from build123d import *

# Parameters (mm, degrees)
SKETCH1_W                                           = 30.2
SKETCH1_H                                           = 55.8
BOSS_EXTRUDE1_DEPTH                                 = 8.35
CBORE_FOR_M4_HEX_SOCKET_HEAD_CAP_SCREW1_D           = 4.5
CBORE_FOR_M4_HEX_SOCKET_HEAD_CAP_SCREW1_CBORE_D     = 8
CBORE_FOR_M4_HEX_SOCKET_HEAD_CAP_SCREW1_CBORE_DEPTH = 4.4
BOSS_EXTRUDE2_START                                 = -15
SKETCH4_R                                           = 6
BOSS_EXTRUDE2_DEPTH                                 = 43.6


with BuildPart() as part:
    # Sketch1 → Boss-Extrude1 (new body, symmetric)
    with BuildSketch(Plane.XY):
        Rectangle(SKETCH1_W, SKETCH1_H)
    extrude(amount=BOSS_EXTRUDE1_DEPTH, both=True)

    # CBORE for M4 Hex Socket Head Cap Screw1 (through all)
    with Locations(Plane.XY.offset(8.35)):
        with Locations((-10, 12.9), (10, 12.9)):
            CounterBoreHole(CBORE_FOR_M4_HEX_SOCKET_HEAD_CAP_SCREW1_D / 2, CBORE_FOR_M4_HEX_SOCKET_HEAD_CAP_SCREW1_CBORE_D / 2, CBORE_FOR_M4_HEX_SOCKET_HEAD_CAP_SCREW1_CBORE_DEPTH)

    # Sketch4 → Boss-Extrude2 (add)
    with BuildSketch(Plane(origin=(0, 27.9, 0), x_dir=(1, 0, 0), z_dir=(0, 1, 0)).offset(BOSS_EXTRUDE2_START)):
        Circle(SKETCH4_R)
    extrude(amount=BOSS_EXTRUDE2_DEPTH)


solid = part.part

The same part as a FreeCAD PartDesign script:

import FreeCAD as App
import Part
import Sketcher

V = App.Vector


def add_polygon(sketch, points):
    """Adds a closed chain of lines whose ends are joined by coincident constraints."""
    first, n = sketch.GeometryCount, len(points)
    for a, b in zip(points, points[1:] + points[:1]):
        sketch.addGeometry(Part.LineSegment(App.Vector(*a, 0), App.Vector(*b, 0)), False)
    for i in range(n):
        sketch.addConstraint(Sketcher.Constraint("Coincident", first + i, 2, first + (i + 1) % n, 1))

doc = App.newDocument("Part")
body = doc.addObject("PartDesign::Body", "Body")

sketch1 = body.newObject("Sketcher::SketchObject", "Sketch")
sketch1.AttachmentSupport = (doc.getObject("XY_Plane"), [""])
sketch1.MapMode = "FlatFace"
add_polygon(sketch1, [(-15.1, 27.9), (-15.1, -27.9), (15.1, -27.9), (15.1, 27.9)])
sketch1.addConstraint([
    Sketcher.Constraint("Vertical", 0),
    Sketcher.Constraint("Horizontal", 1),
    Sketcher.Constraint("Vertical", 2),
    Sketcher.Constraint("Horizontal", 3),
    Sketcher.Constraint("Symmetric", 0, 2, 2, 2, -1, 1),
    Sketcher.Constraint("DistanceX", 1, 1, 1, 2, 30.2),
    Sketcher.Constraint("DistanceY", 0, 2, 0, 1, 55.8),
])
pad1 = body.newObject("PartDesign::Pad", "Pad")
pad1.Profile = sketch1
pad1.Length = 16.7
pad1.Midplane = True

sketch2 = body.newObject("Sketcher::SketchObject", "Sketch001")
sketch2.AttachmentSupport = (doc.getObject("XY_Plane"), [""])
sketch2.MapMode = "FlatFace"
sketch2.AttachmentOffset = App.Placement(V(0, 0, 8.35), App.Rotation())
sketch2.addGeometry([
    Part.Circle(V(-10, 12.9, 0), V(0, 0, 1), 2.25),
    Part.Circle(V(10, 12.9, 0), V(0, 0, 1), 2.25),
], False)
sketch2.addConstraint([
    Sketcher.Constraint("Equal", 0, 1),
    Sketcher.Constraint("Symmetric", 0, 3, 1, 3, -2),
    Sketcher.Constraint("Diameter", 0, 4.5),
    Sketcher.Constraint("DistanceX", 0, 3, -1, 1, 10.0),
    Sketcher.Constraint("DistanceY", -1, 1, 0, 3, 12.9),
])
doc.recompute()
hole = body.newObject("PartDesign::Hole", "Hole")
hole.Profile = sketch2
hole.ThreadType = "None"
hole.Diameter = 4.5
hole.DepthType = "ThroughAll"
hole.HoleCutType = "Counterbore"
hole.HoleCutDiameter = 8
hole.HoleCutDepth = 4.4

sketch3 = body.newObject("Sketcher::SketchObject", "Sketch002")
sketch3.AttachmentSupport = (doc.getObject("XZ_Plane"), [""])
sketch3.MapMode = "FlatFace"
sketch3.AttachmentOffset = App.Placement(V(0, 0, -12.9), App.Rotation())
sketch3.addGeometry(Part.Circle(V(0, 0, 0), V(0, 0, 1), 6), False)
sketch3.addConstraint([
    Sketcher.Constraint("Coincident", 0, 3, -1, 1),
    Sketcher.Constraint("Diameter", 0, 12.0),
])
pad2 = body.newObject("PartDesign::Pad", "Pad001")
pad2.Profile = sketch3
pad2.Length = 43.6
pad2.Reversed = True

doc.recompute()
